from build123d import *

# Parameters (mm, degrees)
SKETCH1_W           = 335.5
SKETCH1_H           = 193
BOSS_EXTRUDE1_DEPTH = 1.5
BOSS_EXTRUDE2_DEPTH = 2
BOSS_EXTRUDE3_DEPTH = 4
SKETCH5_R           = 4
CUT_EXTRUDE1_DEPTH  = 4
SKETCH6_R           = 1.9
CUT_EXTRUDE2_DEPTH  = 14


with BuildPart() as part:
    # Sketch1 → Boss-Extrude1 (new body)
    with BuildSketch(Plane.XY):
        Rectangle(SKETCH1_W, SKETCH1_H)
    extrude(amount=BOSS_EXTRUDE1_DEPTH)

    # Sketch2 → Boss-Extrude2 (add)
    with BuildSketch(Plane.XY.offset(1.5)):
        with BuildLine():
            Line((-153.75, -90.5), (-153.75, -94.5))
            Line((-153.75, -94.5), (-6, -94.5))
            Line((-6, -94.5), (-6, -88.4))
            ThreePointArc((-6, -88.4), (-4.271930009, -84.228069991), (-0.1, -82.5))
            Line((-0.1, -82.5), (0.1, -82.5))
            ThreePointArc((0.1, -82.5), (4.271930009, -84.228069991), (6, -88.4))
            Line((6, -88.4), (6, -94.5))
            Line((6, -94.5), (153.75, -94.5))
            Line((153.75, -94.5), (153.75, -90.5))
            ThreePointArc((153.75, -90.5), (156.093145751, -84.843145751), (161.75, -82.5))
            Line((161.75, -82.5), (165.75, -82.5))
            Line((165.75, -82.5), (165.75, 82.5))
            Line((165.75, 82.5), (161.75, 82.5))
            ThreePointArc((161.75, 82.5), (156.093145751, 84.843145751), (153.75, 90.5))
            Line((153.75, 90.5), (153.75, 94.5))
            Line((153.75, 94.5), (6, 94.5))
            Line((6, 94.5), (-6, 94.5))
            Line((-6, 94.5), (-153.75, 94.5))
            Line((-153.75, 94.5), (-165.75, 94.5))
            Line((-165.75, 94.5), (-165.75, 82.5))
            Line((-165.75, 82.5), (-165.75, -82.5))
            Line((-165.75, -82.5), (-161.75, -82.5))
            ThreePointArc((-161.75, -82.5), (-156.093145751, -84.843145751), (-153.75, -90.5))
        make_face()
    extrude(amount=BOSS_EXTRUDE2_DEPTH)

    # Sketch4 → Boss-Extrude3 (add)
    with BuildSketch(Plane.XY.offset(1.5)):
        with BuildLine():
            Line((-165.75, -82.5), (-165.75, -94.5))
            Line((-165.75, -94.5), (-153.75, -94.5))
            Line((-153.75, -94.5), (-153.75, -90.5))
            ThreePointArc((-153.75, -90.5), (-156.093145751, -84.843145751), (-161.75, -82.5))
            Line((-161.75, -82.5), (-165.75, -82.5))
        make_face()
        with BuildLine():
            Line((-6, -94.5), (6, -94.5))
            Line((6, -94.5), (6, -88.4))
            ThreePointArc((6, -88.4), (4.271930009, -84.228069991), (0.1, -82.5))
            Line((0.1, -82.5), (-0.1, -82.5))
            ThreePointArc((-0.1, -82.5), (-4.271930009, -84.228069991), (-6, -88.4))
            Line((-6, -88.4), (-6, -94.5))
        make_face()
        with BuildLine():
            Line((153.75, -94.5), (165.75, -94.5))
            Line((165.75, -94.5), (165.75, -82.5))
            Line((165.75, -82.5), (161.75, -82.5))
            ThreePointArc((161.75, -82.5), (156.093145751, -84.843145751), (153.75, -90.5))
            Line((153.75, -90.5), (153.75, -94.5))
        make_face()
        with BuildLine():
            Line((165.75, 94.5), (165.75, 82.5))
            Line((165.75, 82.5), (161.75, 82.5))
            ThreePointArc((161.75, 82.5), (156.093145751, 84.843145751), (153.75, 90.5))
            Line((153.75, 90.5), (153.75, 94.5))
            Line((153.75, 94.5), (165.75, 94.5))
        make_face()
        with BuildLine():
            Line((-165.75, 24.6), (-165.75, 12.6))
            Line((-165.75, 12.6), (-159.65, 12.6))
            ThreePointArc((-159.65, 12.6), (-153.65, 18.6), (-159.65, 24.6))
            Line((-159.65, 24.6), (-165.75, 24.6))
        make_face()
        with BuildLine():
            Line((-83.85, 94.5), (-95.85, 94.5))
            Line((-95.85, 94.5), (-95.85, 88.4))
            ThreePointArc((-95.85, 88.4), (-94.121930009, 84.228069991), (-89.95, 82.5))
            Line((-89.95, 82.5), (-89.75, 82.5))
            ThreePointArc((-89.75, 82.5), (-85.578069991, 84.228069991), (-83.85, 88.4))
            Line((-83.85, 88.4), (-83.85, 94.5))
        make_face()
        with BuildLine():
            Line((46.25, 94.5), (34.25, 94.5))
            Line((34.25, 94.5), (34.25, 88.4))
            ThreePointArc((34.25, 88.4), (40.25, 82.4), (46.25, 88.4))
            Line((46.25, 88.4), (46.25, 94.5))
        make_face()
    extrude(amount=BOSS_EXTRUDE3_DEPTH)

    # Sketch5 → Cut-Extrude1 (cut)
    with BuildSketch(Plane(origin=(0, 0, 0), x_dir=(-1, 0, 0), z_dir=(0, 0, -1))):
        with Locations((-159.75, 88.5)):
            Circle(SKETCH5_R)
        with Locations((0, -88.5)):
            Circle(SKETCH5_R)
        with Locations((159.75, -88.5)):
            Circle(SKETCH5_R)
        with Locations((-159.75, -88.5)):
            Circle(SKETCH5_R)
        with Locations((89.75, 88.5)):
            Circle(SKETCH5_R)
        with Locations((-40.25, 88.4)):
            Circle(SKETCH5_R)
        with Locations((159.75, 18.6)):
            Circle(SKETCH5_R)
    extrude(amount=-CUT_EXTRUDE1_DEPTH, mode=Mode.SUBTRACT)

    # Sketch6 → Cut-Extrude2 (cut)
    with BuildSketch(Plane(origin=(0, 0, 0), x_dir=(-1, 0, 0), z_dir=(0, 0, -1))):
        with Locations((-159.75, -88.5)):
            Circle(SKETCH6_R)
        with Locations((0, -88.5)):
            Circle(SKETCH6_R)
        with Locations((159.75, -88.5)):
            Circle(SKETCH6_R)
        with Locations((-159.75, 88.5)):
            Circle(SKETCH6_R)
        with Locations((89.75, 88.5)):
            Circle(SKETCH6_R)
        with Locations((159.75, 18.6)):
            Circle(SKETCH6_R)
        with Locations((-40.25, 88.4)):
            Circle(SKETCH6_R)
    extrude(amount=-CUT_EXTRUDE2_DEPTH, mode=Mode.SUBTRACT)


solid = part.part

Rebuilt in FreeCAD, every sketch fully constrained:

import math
import FreeCAD as App
import Part
import Sketcher

V = App.Vector
Q = App.Units.Quantity

doc = App.newDocument("Part")
body = doc.addObject("PartDesign::Body", "Body")

sketch1 = body.newObject("Sketcher::SketchObject", "Sketch")
sketch1.AttachmentSupport = (doc.getObject("XY_Plane"), [""])
sketch1.MapMode = "FlatFace"
sketch1.addGeometry(Part.LineSegment(V(-168, 96, 0), V(-168, -96, 0)), False)
sketch1.addGeometry(Part.LineSegment(V(-168, -96, 0), V(168, -96, 0)), False)
sketch1.addGeometry(Part.LineSegment(V(168, -96, 0), V(168, 96, 0)), False)
sketch1.addGeometry(Part.LineSegment(V(168, 96, 0), V(-168, 96, 0)), False)
sketch1.addConstraint(Sketcher.Constraint("Coincident", 0, 2, 1, 1))
sketch1.addConstraint(Sketcher.Constraint("Coincident", 1, 2, 2, 1))
sketch1.addConstraint(Sketcher.Constraint("Coincident", 2, 2, 3, 1))
sketch1.addConstraint(Sketcher.Constraint("Coincident", 3, 2, 0, 1))
sketch1.addConstraint(Sketcher.Constraint("Vertical", 0))
sketch1.addConstraint(Sketcher.Constraint("Horizontal", 1))
sketch1.addConstraint(Sketcher.Constraint("Vertical", 2))
sketch1.addConstraint(Sketcher.Constraint("Horizontal", 3))
sketch1.addConstraint(Sketcher.Constraint("Symmetric", 0, 2, 2, 2, -1, 1))
sketch1.addConstraint(Sketcher.Constraint("DistanceY", 0, 2, 0, 1, Q("193 mm")))
sketch1.addConstraint(Sketcher.Constraint("DistanceX", 1, 1, 1, 2, Q("335.5 mm")))
pad1 = body.newObject("PartDesign::Pad", "Pad")
pad1.Profile = sketch1
pad1.Length = 1.5

sketch2 = body.newObject("Sketcher::SketchObject", "Sketch001")
sketch2.AttachmentSupport = (doc.getObject("XY_Plane"), [""])
sketch2.MapMode = "FlatFace"
sketch2.AttachmentOffset = App.Placement(V(0, 0, 1.5), App.Rotation())
sketch2.addGeometry(Part.LineSegment(V(-153.75, -90.5, 0), V(-153.75, -94.5, 0)), False)
sketch2.addGeometry(Part.LineSegment(V(-153.75, -94.5, 0), V(-6, -94.5, 0)), False)
sketch2.addGeometry(Part.LineSegment(V(-6, -94.5, 0), V(-6, -88.4, 0)), False)
sketch2.addGeometry(Part.ArcOfCircle(Part.Circle(V(-0.1, -88.4, 0), V(0, 0, 1), 5.9), math.radians(90), math.radians(180)), False)
sketch2.addGeometry(Part.LineSegment(V(-0.1, -82.5, 0), V(0.1, -82.5, 0)), False)
sketch2.addGeometry(Part.ArcOfCircle(Part.Circle(V(0.1, -88.4, 0), V(0, 0, 1), 5.9), math.radians(0), math.radians(90)), False)
sketch2.addGeometry(Part.LineSegment(V(6, -88.4, 0), V(6, -94.5, 0)), False)
sketch2.addGeometry(Part.LineSegment(V(6, -94.5, 0), V(153.75, -94.5, 0)), False)
sketch2.addGeometry(Part.LineSegment(V(153.75, -94.5, 0), V(153.75, -90.5, 0)), False)
sketch2.addGeometry(Part.ArcOfCircle(Part.Circle(V(161.75, -90.5, 0), V(0, 0, 1), 8), math.radians(90), math.radians(180)), False)
sketch2.addGeometry(Part.LineSegment(V(161.75, -82.5, 0), V(165.75, -82.5, 0)), False)
sketch2.addGeometry(Part.LineSegment(V(165.75, -82.5, 0), V(165.75, 82.5, 0)), False)
sketch2.addGeometry(Part.LineSegment(V(165.75, 82.5, 0), V(161.75, 82.5, 0)), False)
sketch2.addGeometry(Part.ArcOfCircle(Part.Circle(V(161.75, 90.5, 0), V(0, 0, 1), 8), math.radians(-180), math.radians(-90)), False)
sketch2.addGeometry(Part.LineSegment(V(153.75, 90.5, 0), V(153.75, 94.5, 0)), False)
sketch2.addGeometry(Part.LineSegment(V(153.75, 94.5, 0), V(-165.75, 94.5, 0)), False)
sketch2.addGeometry(Part.LineSegment(V(-165.75, 94.5, 0), V(-165.75, -82.5, 0)), False)
sketch2.addGeometry(Part.LineSegment(V(-165.75, -82.5, 0), V(-161.75, -82.5, 0)), False)
sketch2.addGeometry(Part.ArcOfCircle(Part.Circle(V(-161.75, -90.5, 0), V(0, 0, 1), 8), math.radians(0), math.radians(90)), False)
sketch2.addConstraint(Sketcher.Constraint("Coincident", 0, 2, 1, 1))
sketch2.addConstraint(Sketcher.Constraint("Coincident", 1, 2, 2, 1))
sketch2.addConstraint(Sketcher.Constraint("Tangent", 2, 2, 3, 2))
sketch2.addConstraint(Sketcher.Constraint("Tangent", 3, 1, 4, 1))
sketch2.addConstraint(Sketcher.Constraint("Tangent", 4, 2, 5, 2))
sketch2.addConstraint(Sketcher.Constraint("Tangent", 5, 1, 6, 1))
sketch2.addConstraint(Sketcher.Constraint("Coincident", 6, 2, 7, 1))
sketch2.addConstraint(Sketcher.Constraint("Coincident", 7, 2, 8, 1))
sketch2.addConstraint(Sketcher.Constraint("Tangent", 8, 2, 9, 2))
sketch2.addConstraint(Sketcher.Constraint("Tangent", 9, 1, 10, 1))
sketch2.addConstraint(Sketcher.Constraint("Coincident", 10, 2, 11, 1))
sketch2.addConstraint(Sketcher.Constraint("Coincident", 11, 2, 12, 1))
sketch2.addConstraint(Sketcher.Constraint("Tangent", 12, 2, 13, 2))
sketch2.addConstraint(Sketcher.Constraint("Tangent", 13, 1, 14, 1))
sketch2.addConstraint(Sketcher.Constraint("Coincident", 14, 2, 15, 1))
sketch2.addConstraint(Sketcher.Constraint("Coincident", 15, 2, 16, 1))
sketch2.addConstraint(Sketcher.Constraint("Coincident", 16, 2, 17, 1))
sketch2.addConstraint(Sketcher.Constraint("Tangent", 17, 2, 18, 2))
sketch2.addConstraint(Sketcher.Constraint("Tangent", 18, 1, 0, 1))
sketch2.addConstraint(Sketcher.Constraint("Vertical", 0))
sketch2.addConstraint(Sketcher.Constraint("Horizontal", 1))
sketch2.addConstraint(Sketcher.Constraint("Vertical", 2))
sketch2.addConstraint(Sketcher.Constraint("Horizontal", 4))
sketch2.addConstraint(Sketcher.Constraint("Vertical", 6))
sketch2.addConstraint(Sketcher.Constraint("Horizontal", 7))
sketch2.addConstraint(Sketcher.Constraint("Vertical", 8))
sketch2.addConstraint(Sketcher.Constraint("Horizontal", 10))
sketch2.addConstraint(Sketcher.Constraint("Vertical", 11))
sketch2.addConstraint(Sketcher.Constraint("Horizontal", 12))
sketch2.addConstraint(Sketcher.Constraint("Vertical", 14))
sketch2.addConstraint(Sketcher.Constraint("Horizontal", 15))
sketch2.addConstraint(Sketcher.Constraint("Vertical", 16))
sketch2.addConstraint(Sketcher.Constraint("Horizontal", 17))
sketch2.addConstraint(Sketcher.Constraint("Equal", 3, 5))
sketch2.addConstraint(Sketcher.Constraint("Equal", 9, 13))
sketch2.addConstraint(Sketcher.Constraint("Equal", 13, 18))
sketch2.addConstraint(Sketcher.Constraint("Symmetric", 13, 3, 18, 3, -1, 1))
sketch2.addConstraint(Sketcher.Constraint("Symmetric", 9, 3, 18, 3, -2))
sketch2.addConstraint(Sketcher.Constraint("Symmetric", 1, 2, 6, 2, -2))
sketch2.addConstraint(Sketcher.Constraint("Horizontal", 4, 2, 9, 1))
sketch2.addConstraint(Sketcher.Constraint("Equal", 12, 17))
sketch2.addConstraint(Sketcher.Constraint("Equal", 17, 0))
sketch2.addConstraint(Sketcher.Constraint("Equal", 8, 14))
sketch2.addConstraint(Sketcher.Constraint("Radius", 9, Q("8 mm")))
sketch2.addConstraint(Sketcher.Constraint("Radius", 3, Q("5.9 mm")))
sketch2.addConstraint(Sketcher.Constraint("DistanceX", 10, 1, 10, 2, Q("4 mm")))
sketch2.addConstraint(Sketcher.Constraint("DistanceY", 11, 1, 11, 2, Q("165 mm")))
sketch2.addConstraint(Sketcher.Constraint("DistanceX", 4, 1, 4, 2, Q("0.2 mm")))
sketch2.addConstraint(Sketcher.Constraint("DistanceX", 15, 2, 15, 1, Q("319.5 mm")))
pad2 = body.newObject("PartDesign::Pad", "Pad001")
pad2.Profile = sketch2
pad2.Length = 2

sketch3 = body.newObject("Sketcher::SketchObject", "Sketch002")
sketch3.AttachmentSupport = (doc.getObject("XY_Plane"), [""])
sketch3.MapMode = "FlatFace"
sketch3.AttachmentOffset = App.Placement(V(0, 0, 1.5), App.Rotation())
sketch3.addGeometry(Part.LineSegment(V(-165.75, -82.5, 0), V(-165.75, -94.5, 0)), False)
sketch3.addGeometry(Part.LineSegment(V(-165.75, -94.5, 0), V(-153.75, -94.5, 0)), False)
sketch3.addGeometry(Part.LineSegment(V(-153.75, -94.5, 0), V(-153.75, -90.5, 0)), False)
sketch3.addGeometry(Part.ArcOfCircle(Part.Circle(V(-161.75, -90.5, 0), V(0, 0, 1), 8), math.radians(0), math.radians(90)), False)
sketch3.addGeometry(Part.LineSegment(V(-161.75, -82.5, 0), V(-165.75, -82.5, 0)), False)
sketch3.addGeometry(Part.LineSegment(V(-6, -94.5, 0), V(6, -94.5, 0)), False)
sketch3.addGeometry(Part.LineSegment(V(6, -94.5, 0), V(6, -88.4, 0)), False)
sketch3.addGeometry(Part.ArcOfCircle(Part.Circle(V(0.1, -88.4, 0), V(0, 0, 1), 5.9), math.radians(0), math.radians(90)), False)
sketch3.addGeometry(Part.LineSegment(V(0.1, -82.5, 0), V(-0.1, -82.5, 0)), False)
sketch3.addGeometry(Part.ArcOfCircle(Part.Circle(V(-0.1, -88.4, 0), V(0, 0, 1), 5.9), math.radians(90), math.radians(180)), False)
sketch3.addGeometry(Part.LineSegment(V(-6, -88.4, 0), V(-6, -94.5, 0)), False)
sketch3.addGeometry(Part.LineSegment(V(153.75, -94.5, 0), V(165.75, -94.5, 0)), False)
sketch3.addGeometry(Part.LineSegment(V(165.75, -94.5, 0), V(165.75, -82.5, 0)), False)
sketch3.addGeometry(Part.LineSegment(V(165.75, -82.5, 0), V(161.75, -82.5, 0)), False)
sketch3.addGeometry(Part.ArcOfCircle(Part.Circle(V(161.75, -90.5, 0), V(0, 0, 1), 8), math.radians(90), math.radians(180)), False)
sketch3.addGeometry(Part.LineSegment(V(153.75, -90.5, 0), V(153.75, -94.5, 0)), False)
sketch3.addGeometry(Part.LineSegment(V(165.75, 82.5, 0), V(165.75, 94.5, 0)), False)
sketch3.addGeometry(Part.LineSegment(V(165.75, 94.5, 0), V(153.75, 94.5, 0)), False)
sketch3.addGeometry(Part.LineSegment(V(153.75, 94.5, 0), V(153.75, 90.5, 0)), False)
sketch3.addGeometry(Part.ArcOfCircle(Part.Circle(V(161.75, 90.5, 0), V(0, 0, 1), 8), math.radians(-180), math.radians(-90)), False)
sketch3.addGeometry(Part.LineSegment(V(161.75, 82.5, 0), V(165.75, 82.5, 0)), False)
sketch3.addGeometry(Part.LineSegment(V(-165.75, 24.6, 0), V(-165.75, 12.6, 0)), False)
sketch3.addGeometry(Part.LineSegment(V(-165.75, 12.6, 0), V(-159.65, 12.6, 0)), False)
sketch3.addGeometry(Part.ArcOfCircle(Part.Circle(V(-159.65, 18.6, 0), V(0, 0, 1), 6), math.radians(-90), math.radians(90)), False)
sketch3.addGeometry(Part.LineSegment(V(-159.65, 24.6, 0), V(-165.75, 24.6, 0)), False)
sketch3.addGeometry(Part.LineSegment(V(-83.85, 94.5, 0), V(-95.85, 94.5, 0)), False)
sketch3.addGeometry(Part.LineSegment(V(-95.85, 94.5, 0), V(-95.85, 88.4, 0)), False)
sketch3.addGeometry(Part.ArcOfCircle(Part.Circle(V(-89.95, 88.4, 0), V(0, 0, 1), 5.9), math.radians(180), math.radians(270)), False)
sketch3.addGeometry(Part.LineSegment(V(-89.95, 82.5, 0), V(-89.75, 82.5, 0)), False)
sketch3.addGeometry(Part.ArcOfCircle(Part.Circle(V(-89.75, 88.4, 0), V(0, 0, 1), 5.9), math.radians(-90), math.radians(0)), False)
sketch3.addGeometry(Part.LineSegment(V(-83.85, 88.4, 0), V(-83.85, 94.5, 0)), False)
sketch3.addGeometry(Part.LineSegment(V(46.25, 94.5, 0), V(34.25, 94.5, 0)), False)
sketch3.addGeometry(Part.LineSegment(V(34.25, 94.5, 0), V(34.25, 88.4, 0)), False)
sketch3.addGeometry(Part.ArcOfCircle(Part.Circle(V(40.25, 88.4, 0), V(0, 0, 1), 6), math.radians(180), math.radians(360)), False)
sketch3.addGeometry(Part.LineSegment(V(46.25, 88.4, 0), V(46.25, 94.5, 0)), False)
sketch3.addConstraint(Sketcher.Constraint("Coincident", 0, 2, 1, 1))
sketch3.addConstraint(Sketcher.Constraint("Coincident", 1, 2, 2, 1))
sketch3.addConstraint(Sketcher.Constraint("Tangent", 2, 2, 3, 1))
sketch3.addConstraint(Sketcher.Constraint("Tangent", 3, 2, 4, 1))
sketch3.addConstraint(Sketcher.Constraint("Coincident", 4, 2, 0, 1))
sketch3.addConstraint(Sketcher.Constraint("Coincident", 5, 2, 6, 1))
sketch3.addConstraint(Sketcher.Constraint("Tangent", 6, 2, 7, 1))
sketch3.addConstraint(Sketcher.Constraint("Tangent", 7, 2, 8, 1))
sketch3.addConstraint(Sketcher.Constraint("Tangent", 8, 2, 9, 1))
sketch3.addConstraint(Sketcher.Constraint("Tangent", 9, 2, 10, 1))
sketch3.addConstraint(Sketcher.Constraint("Coincident", 10, 2, 5, 1))
sketch3.addConstraint(Sketcher.Constraint("Coincident", 11, 2, 12, 1))
sketch3.addConstraint(Sketcher.Constraint("Coincident", 12, 2, 13, 1))
sketch3.addConstraint(Sketcher.Constraint("Tangent", 13, 2, 14, 1))
sketch3.addConstraint(Sketcher.Constraint("Tangent", 14, 2, 15, 1))
sketch3.addConstraint(Sketcher.Constraint("Coincident", 15, 2, 11, 1))
sketch3.addConstraint(Sketcher.Constraint("Coincident", 16, 2, 17, 1))
sketch3.addConstraint(Sketcher.Constraint("Coincident", 17, 2, 18, 1))
sketch3.addConstraint(Sketcher.Constraint("Tangent", 18, 2, 19, 1))
sketch3.addConstraint(Sketcher.Constraint("Tangent", 19, 2, 20, 1))
sketch3.addConstraint(Sketcher.Constraint("Coincident", 20, 2, 16, 1))
sketch3.addConstraint(Sketcher.Constraint("Coincident", 21, 2, 22, 1))
sketch3.addConstraint(Sketcher.Constraint("Tangent", 22, 2, 23, 1))
sketch3.addConstraint(Sketcher.Constraint("Tangent", 23, 2, 24, 1))
sketch3.addConstraint(Sketcher.Constraint("Coincident", 24, 2, 21, 1))
sketch3.addConstraint(Sketcher.Constraint("Coincident", 25, 2, 26, 1))
sketch3.addConstraint(Sketcher.Constraint("Tangent", 26, 2, 27, 1))
sketch3.addConstraint(Sketcher.Constraint("Tangent", 27, 2, 28, 1))
sketch3.addConstraint(Sketcher.Constraint("Tangent", 28, 2, 29, 1))
sketch3.addConstraint(Sketcher.Constraint("Tangent", 29, 2, 30, 1))
sketch3.addConstraint(Sketcher.Constraint("Coincident", 30, 2, 25, 1))
sketch3.addConstraint(Sketcher.Constraint("Coincident", 31, 2, 32, 1))
sketch3.addConstraint(Sketcher.Constraint("Tangent", 32, 2, 33, 1))
sketch3.addConstraint(Sketcher.Constraint("Tangent", 33, 2, 34, 1))
sketch3.addConstraint(Sketcher.Constraint("Coincident", 34, 2, 31, 1))
sketch3.addConstraint(Sketcher.Constraint("Vertical", 0))
sketch3.addConstraint(Sketcher.Constraint("Horizontal", 1))
sketch3.addConstraint(Sketcher.Constraint("Vertical", 2))
sketch3.addConstraint(Sketcher.Constraint("Horizontal", 4))
sketch3.addConstraint(Sketcher.Constraint("Horizontal", 5))
sketch3.addConstraint(Sketcher.Constraint("Vertical", 6))
sketch3.addConstraint(Sketcher.Constraint("Horizontal", 8))
sketch3.addConstraint(Sketcher.Constraint("Vertical", 10))
sketch3.addConstraint(Sketcher.Constraint("Horizontal", 11))
sketch3.addConstraint(Sketcher.Constraint("Vertical", 12))
sketch3.addConstraint(Sketcher.Constraint("Horizontal", 13))
sketch3.addConstraint(Sketcher.Constraint("Vertical", 15))
sketch3.addConstraint(Sketcher.Constraint("Vertical", 16))
sketch3.addConstraint(Sketcher.Constraint("Horizontal", 17))
sketch3.addConstraint(Sketcher.Constraint("Vertical", 18))
sketch3.addConstraint(Sketcher.Constraint("Horizontal", 20))
sketch3.addConstraint(Sketcher.Constraint("Vertical", 21))
sketch3.addConstraint(Sketcher.Constraint("Horizontal", 22))
sketch3.addConstraint(Sketcher.Constraint("Horizontal", 24))
sketch3.addConstraint(Sketcher.Constraint("Horizontal", 25))
sketch3.addConstraint(Sketcher.Constraint("Vertical", 26))
sketch3.addConstraint(Sketcher.Constraint("Horizontal", 28))
sketch3.addConstraint(Sketcher.Constraint("Vertical", 30))
sketch3.addConstraint(Sketcher.Constraint("Horizontal", 31))
sketch3.addConstraint(Sketcher.Constraint("Vertical", 32))
sketch3.addConstraint(Sketcher.Constraint("Vertical", 34))
sketch3.addConstraint(Sketcher.Constraint("Equal", 7, 9))
sketch3.addConstraint(Sketcher.Constraint("Equal", 3, 14))
sketch3.addConstraint(Sketcher.Constraint("Equal", 14, 19))
sketch3.addConstraint(Sketcher.Constraint("Equal", 9, 27))
sketch3.addConstraint(Sketcher.Constraint("Equal", 27, 29))
sketch3.addConstraint(Sketcher.Constraint("Equal", 23, 33))
sketch3.addConstraint(Sketcher.Constraint("Symmetric", 3, 3, 19, 3, -1, 1))
sketch3.addConstraint(Sketcher.Constraint("Symmetric", 0, 2, 16, 2, -1, 1))
sketch3.addConstraint(Sketcher.Constraint("Symmetric", 3, 3, 14, 3, -2))
sketch3.addConstraint(Sketcher.Constraint("Symmetric", 0, 2, 11, 2, -2))
sketch3.addConstraint(Sketcher.Constraint("Horizontal", 29, 3, 33, 3))
sketch3.addConstraint(Sketcher.Constraint("Horizontal", 1, 2, 5, 2))
sketch3.addConstraint(Sketcher.Constraint("Horizontal", 4, 2, 7, 2))
sketch3.addConstraint(Sketcher.Constraint("Horizontal", 17, 2, 25, 2))
sketch3.addConstraint(Sketcher.Constraint("Horizontal", 20, 2, 27, 2))
sketch3.addConstraint(Sketcher.Constraint("Horizontal", 30, 2, 31, 2))
sketch3.addConstraint(Sketcher.Constraint("Vertical", 4, 2, 21, 2))
sketch3.addConstraint(Sketcher.Constraint("Equal", 1, 5))
sketch3.addConstraint(Sketcher.Constraint("Equal", 17, 25))
sketch3.addConstraint(Sketcher.Constraint("Equal", 25, 31))
sketch3.addConstraint(Sketcher.Constraint("Equal", 31, 0))
sketch3.addConstraint(Sketcher.Constraint("Equal", 24, 6))
sketch3.addConstraint(Sketcher.Constraint("Radius", 3, Q("8 mm")))
sketch3.addConstraint(Sketcher.Constraint("Radius", 23, Q("6 mm")))
sketch3.addConstraint(Sketcher.Constraint("Radius", 7, Q("5.9 mm")))
sketch3.addConstraint(Sketcher.Constraint("DistanceX", -1, 1, 5, 2, Q("6 mm")))
sketch3.addConstraint(Sketcher.Constraint("DistanceY", 14, 3, 19, 3, Q("181 mm")))
sketch3.addConstraint(Sketcher.Constraint("DistanceY", 9, 3, 23, 3, Q("107 mm")))
sketch3.addConstraint(Sketcher.Constraint("DistanceX", 3, 3, 29, 3, Q("72 mm")))
sketch3.addConstraint(Sketcher.Constraint("DistanceX", 29, 3, 33, 3, Q("130 mm")))
sketch3.addConstraint(Sketcher.Constraint("DistanceX", 3, 3, 14, 3, Q("323.5 mm")))
pad3 = body.newObject("PartDesign::Pad", "Pad002")
pad3.Profile = sketch3
pad3.Length = 4

sketch4 = body.newObject("Sketcher::SketchObject", "Sketch003")
sketch4.AttachmentSupport = (doc.getObject("XY_Plane"), [""])
sketch4.MapMode = "FlatFace"
sketch4.addGeometry(Part.Circle(V(159.8, 88.5, 0), V(0, 0, 1), 4), False)
sketch4.addGeometry(Part.Circle(V(0, -88.5, 0), V(0, 0, 1), 4), False)
sketch4.addGeometry(Part.Circle(V(-159.8, -88.5, 0), V(0, 0, 1), 4), False)
sketch4.addGeometry(Part.Circle(V(159.8, -88.5, 0), V(0, 0, 1), 4), False)
sketch4.addGeometry(Part.Circle(V(-89.8, 88.5, 0), V(0, 0, 1), 4), False)
sketch4.addGeometry(Part.Circle(V(40.2, 88.4, 0), V(0, 0, 1), 4), False)
sketch4.addGeometry(Part.Circle(V(-159.8, 18.6, 0), V(0, 0, 1), 4), False)
sketch4.addConstraint(Sketcher.Constraint("Equal", 0, 1))
sketch4.addConstraint(Sketcher.Constraint("Equal", 1, 2))
sketch4.addConstraint(Sketcher.Constraint("Equal", 2, 3))
sketch4.addConstraint(Sketcher.Constraint("Equal", 3, 4))
sketch4.addConstraint(Sketcher.Constraint("Equal", 4, 5))
sketch4.addConstraint(Sketcher.Constraint("Equal", 5, 6))
sketch4.addConstraint(Sketcher.Constraint("Symmetric", 0, 3, 2, 3, -1, 1))
sketch4.addConstraint(Sketcher.Constraint("Symmetric", 2, 3, 3, 3, -2))
sketch4.addConstraint(Sketcher.Constraint("PointOnObject", 1, 3, -2))
sketch4.addConstraint(Sketcher.Constraint("Horizontal", 1, 3, 2, 3))
sketch4.addConstraint(Sketcher.Constraint("Horizontal", 0, 3, 4, 3))
sketch4.addConstraint(Sketcher.Constraint("Vertical", 2, 3, 6, 3))
sketch4.addConstraint(Sketcher.Constraint("Diameter", 0, Q("8 mm")))
sketch4.addConstraint(Sketcher.Constraint("DistanceY", 1, 3, 0, 3, Q("177 mm")))
sketch4.addConstraint(Sketcher.Constraint("DistanceX", 2, 3, 4, 3, Q("70 mm")))
sketch4.addConstraint(Sketcher.Constraint("DistanceX", 4, 3, 5, 3, Q("130 mm")))
sketch4.addConstraint(Sketcher.Constraint("DistanceY", -1, 1, 5, 3, Q("88.4 mm")))
sketch4.addConstraint(Sketcher.Constraint("DistanceY", -1, 1, 6, 3, Q("18.6 mm")))
sketch4.addConstraint(Sketcher.Constraint("DistanceX", 2, 3, 0, 3, Q("319.5 mm")))
pocket1 = body.newObject("PartDesign::Pocket", "Pocket")
pocket1.Profile = sketch4
pocket1.Length = 4
pocket1.Reversed = True

sketch5 = body.newObject("Sketcher::SketchObject", "Sketch004")
sketch5.AttachmentSupport = (doc.getObject("XY_Plane"), [""])
sketch5.MapMode = "FlatFace"
sketch5.addGeometry(Part.Circle(V(159.8, -88.5, 0), V(0, 0, 1), 1.9), False)
sketch5.addGeometry(Part.Circle(V(0, -88.5, 0), V(0, 0, 1), 1.9), False)
sketch5.addGeometry(Part.Circle(V(-159.8, -88.5, 0), V(0, 0, 1), 1.9), False)
sketch5.addGeometry(Part.Circle(V(159.8, 88.5, 0), V(0, 0, 1), 1.9), False)
sketch5.addGeometry(Part.Circle(V(-89.8, 88.5, 0), V(0, 0, 1), 1.9), False)
sketch5.addGeometry(Part.Circle(V(-159.8, 18.6, 0), V(0, 0, 1), 1.9), False)
sketch5.addGeometry(Part.Circle(V(40.2, 88.4, 0), V(0, 0, 1), 1.9), False)
sketch5.addConstraint(Sketcher.Constraint("Equal", 0, 1))
sketch5.addConstraint(Sketcher.Constraint("Equal", 1, 2))
sketch5.addConstraint(Sketcher.Constraint("Equal", 2, 3))
sketch5.addConstraint(Sketcher.Constraint("Equal", 3, 4))
sketch5.addConstraint(Sketcher.Constraint("Equal", 4, 5))
sketch5.addConstraint(Sketcher.Constraint("Equal", 5, 6))
sketch5.addConstraint(Sketcher.Constraint("Symmetric", 2, 3, 3, 3, -1, 1))
sketch5.addConstraint(Sketcher.Constraint("Symmetric", 0, 3, 2, 3, -2))
sketch5.addConstraint(Sketcher.Constraint("PointOnObject", 1, 3, -2))
sketch5.addConstraint(Sketcher.Constraint("Horizontal", 0, 3, 1, 3))
sketch5.addConstraint(Sketcher.Constraint("Horizontal", 3, 3, 4, 3))
sketch5.addConstraint(Sketcher.Constraint("Vertical", 2, 3, 5, 3))
sketch5.addConstraint(Sketcher.Constraint("Diameter", 0, Q("3.8 mm")))
sketch5.addConstraint(Sketcher.Constraint("DistanceY", 0, 3, 3, 3, Q("177 mm")))
sketch5.addConstraint(Sketcher.Constraint("DistanceX", 2, 3, 4, 3, Q("70 mm")))
sketch5.addConstraint(Sketcher.Constraint("DistanceX", 4, 3, 6, 3, Q("130 mm")))
sketch5.addConstraint(Sketcher.Constraint("DistanceY", -1, 1, 5, 3, Q("18.6 mm")))
sketch5.addConstraint(Sketcher.Constraint("DistanceY", -1, 1, 6, 3, Q("88.4 mm")))
sketch5.addConstraint(Sketcher.Constraint("DistanceX", 2, 3, 0, 3, Q("319.5 mm")))
pocket2 = body.newObject("PartDesign::Pocket", "Pocket001")
pocket2.Profile = sketch5
pocket2.Length = 14
pocket2.Reversed = True

doc.recompute()
